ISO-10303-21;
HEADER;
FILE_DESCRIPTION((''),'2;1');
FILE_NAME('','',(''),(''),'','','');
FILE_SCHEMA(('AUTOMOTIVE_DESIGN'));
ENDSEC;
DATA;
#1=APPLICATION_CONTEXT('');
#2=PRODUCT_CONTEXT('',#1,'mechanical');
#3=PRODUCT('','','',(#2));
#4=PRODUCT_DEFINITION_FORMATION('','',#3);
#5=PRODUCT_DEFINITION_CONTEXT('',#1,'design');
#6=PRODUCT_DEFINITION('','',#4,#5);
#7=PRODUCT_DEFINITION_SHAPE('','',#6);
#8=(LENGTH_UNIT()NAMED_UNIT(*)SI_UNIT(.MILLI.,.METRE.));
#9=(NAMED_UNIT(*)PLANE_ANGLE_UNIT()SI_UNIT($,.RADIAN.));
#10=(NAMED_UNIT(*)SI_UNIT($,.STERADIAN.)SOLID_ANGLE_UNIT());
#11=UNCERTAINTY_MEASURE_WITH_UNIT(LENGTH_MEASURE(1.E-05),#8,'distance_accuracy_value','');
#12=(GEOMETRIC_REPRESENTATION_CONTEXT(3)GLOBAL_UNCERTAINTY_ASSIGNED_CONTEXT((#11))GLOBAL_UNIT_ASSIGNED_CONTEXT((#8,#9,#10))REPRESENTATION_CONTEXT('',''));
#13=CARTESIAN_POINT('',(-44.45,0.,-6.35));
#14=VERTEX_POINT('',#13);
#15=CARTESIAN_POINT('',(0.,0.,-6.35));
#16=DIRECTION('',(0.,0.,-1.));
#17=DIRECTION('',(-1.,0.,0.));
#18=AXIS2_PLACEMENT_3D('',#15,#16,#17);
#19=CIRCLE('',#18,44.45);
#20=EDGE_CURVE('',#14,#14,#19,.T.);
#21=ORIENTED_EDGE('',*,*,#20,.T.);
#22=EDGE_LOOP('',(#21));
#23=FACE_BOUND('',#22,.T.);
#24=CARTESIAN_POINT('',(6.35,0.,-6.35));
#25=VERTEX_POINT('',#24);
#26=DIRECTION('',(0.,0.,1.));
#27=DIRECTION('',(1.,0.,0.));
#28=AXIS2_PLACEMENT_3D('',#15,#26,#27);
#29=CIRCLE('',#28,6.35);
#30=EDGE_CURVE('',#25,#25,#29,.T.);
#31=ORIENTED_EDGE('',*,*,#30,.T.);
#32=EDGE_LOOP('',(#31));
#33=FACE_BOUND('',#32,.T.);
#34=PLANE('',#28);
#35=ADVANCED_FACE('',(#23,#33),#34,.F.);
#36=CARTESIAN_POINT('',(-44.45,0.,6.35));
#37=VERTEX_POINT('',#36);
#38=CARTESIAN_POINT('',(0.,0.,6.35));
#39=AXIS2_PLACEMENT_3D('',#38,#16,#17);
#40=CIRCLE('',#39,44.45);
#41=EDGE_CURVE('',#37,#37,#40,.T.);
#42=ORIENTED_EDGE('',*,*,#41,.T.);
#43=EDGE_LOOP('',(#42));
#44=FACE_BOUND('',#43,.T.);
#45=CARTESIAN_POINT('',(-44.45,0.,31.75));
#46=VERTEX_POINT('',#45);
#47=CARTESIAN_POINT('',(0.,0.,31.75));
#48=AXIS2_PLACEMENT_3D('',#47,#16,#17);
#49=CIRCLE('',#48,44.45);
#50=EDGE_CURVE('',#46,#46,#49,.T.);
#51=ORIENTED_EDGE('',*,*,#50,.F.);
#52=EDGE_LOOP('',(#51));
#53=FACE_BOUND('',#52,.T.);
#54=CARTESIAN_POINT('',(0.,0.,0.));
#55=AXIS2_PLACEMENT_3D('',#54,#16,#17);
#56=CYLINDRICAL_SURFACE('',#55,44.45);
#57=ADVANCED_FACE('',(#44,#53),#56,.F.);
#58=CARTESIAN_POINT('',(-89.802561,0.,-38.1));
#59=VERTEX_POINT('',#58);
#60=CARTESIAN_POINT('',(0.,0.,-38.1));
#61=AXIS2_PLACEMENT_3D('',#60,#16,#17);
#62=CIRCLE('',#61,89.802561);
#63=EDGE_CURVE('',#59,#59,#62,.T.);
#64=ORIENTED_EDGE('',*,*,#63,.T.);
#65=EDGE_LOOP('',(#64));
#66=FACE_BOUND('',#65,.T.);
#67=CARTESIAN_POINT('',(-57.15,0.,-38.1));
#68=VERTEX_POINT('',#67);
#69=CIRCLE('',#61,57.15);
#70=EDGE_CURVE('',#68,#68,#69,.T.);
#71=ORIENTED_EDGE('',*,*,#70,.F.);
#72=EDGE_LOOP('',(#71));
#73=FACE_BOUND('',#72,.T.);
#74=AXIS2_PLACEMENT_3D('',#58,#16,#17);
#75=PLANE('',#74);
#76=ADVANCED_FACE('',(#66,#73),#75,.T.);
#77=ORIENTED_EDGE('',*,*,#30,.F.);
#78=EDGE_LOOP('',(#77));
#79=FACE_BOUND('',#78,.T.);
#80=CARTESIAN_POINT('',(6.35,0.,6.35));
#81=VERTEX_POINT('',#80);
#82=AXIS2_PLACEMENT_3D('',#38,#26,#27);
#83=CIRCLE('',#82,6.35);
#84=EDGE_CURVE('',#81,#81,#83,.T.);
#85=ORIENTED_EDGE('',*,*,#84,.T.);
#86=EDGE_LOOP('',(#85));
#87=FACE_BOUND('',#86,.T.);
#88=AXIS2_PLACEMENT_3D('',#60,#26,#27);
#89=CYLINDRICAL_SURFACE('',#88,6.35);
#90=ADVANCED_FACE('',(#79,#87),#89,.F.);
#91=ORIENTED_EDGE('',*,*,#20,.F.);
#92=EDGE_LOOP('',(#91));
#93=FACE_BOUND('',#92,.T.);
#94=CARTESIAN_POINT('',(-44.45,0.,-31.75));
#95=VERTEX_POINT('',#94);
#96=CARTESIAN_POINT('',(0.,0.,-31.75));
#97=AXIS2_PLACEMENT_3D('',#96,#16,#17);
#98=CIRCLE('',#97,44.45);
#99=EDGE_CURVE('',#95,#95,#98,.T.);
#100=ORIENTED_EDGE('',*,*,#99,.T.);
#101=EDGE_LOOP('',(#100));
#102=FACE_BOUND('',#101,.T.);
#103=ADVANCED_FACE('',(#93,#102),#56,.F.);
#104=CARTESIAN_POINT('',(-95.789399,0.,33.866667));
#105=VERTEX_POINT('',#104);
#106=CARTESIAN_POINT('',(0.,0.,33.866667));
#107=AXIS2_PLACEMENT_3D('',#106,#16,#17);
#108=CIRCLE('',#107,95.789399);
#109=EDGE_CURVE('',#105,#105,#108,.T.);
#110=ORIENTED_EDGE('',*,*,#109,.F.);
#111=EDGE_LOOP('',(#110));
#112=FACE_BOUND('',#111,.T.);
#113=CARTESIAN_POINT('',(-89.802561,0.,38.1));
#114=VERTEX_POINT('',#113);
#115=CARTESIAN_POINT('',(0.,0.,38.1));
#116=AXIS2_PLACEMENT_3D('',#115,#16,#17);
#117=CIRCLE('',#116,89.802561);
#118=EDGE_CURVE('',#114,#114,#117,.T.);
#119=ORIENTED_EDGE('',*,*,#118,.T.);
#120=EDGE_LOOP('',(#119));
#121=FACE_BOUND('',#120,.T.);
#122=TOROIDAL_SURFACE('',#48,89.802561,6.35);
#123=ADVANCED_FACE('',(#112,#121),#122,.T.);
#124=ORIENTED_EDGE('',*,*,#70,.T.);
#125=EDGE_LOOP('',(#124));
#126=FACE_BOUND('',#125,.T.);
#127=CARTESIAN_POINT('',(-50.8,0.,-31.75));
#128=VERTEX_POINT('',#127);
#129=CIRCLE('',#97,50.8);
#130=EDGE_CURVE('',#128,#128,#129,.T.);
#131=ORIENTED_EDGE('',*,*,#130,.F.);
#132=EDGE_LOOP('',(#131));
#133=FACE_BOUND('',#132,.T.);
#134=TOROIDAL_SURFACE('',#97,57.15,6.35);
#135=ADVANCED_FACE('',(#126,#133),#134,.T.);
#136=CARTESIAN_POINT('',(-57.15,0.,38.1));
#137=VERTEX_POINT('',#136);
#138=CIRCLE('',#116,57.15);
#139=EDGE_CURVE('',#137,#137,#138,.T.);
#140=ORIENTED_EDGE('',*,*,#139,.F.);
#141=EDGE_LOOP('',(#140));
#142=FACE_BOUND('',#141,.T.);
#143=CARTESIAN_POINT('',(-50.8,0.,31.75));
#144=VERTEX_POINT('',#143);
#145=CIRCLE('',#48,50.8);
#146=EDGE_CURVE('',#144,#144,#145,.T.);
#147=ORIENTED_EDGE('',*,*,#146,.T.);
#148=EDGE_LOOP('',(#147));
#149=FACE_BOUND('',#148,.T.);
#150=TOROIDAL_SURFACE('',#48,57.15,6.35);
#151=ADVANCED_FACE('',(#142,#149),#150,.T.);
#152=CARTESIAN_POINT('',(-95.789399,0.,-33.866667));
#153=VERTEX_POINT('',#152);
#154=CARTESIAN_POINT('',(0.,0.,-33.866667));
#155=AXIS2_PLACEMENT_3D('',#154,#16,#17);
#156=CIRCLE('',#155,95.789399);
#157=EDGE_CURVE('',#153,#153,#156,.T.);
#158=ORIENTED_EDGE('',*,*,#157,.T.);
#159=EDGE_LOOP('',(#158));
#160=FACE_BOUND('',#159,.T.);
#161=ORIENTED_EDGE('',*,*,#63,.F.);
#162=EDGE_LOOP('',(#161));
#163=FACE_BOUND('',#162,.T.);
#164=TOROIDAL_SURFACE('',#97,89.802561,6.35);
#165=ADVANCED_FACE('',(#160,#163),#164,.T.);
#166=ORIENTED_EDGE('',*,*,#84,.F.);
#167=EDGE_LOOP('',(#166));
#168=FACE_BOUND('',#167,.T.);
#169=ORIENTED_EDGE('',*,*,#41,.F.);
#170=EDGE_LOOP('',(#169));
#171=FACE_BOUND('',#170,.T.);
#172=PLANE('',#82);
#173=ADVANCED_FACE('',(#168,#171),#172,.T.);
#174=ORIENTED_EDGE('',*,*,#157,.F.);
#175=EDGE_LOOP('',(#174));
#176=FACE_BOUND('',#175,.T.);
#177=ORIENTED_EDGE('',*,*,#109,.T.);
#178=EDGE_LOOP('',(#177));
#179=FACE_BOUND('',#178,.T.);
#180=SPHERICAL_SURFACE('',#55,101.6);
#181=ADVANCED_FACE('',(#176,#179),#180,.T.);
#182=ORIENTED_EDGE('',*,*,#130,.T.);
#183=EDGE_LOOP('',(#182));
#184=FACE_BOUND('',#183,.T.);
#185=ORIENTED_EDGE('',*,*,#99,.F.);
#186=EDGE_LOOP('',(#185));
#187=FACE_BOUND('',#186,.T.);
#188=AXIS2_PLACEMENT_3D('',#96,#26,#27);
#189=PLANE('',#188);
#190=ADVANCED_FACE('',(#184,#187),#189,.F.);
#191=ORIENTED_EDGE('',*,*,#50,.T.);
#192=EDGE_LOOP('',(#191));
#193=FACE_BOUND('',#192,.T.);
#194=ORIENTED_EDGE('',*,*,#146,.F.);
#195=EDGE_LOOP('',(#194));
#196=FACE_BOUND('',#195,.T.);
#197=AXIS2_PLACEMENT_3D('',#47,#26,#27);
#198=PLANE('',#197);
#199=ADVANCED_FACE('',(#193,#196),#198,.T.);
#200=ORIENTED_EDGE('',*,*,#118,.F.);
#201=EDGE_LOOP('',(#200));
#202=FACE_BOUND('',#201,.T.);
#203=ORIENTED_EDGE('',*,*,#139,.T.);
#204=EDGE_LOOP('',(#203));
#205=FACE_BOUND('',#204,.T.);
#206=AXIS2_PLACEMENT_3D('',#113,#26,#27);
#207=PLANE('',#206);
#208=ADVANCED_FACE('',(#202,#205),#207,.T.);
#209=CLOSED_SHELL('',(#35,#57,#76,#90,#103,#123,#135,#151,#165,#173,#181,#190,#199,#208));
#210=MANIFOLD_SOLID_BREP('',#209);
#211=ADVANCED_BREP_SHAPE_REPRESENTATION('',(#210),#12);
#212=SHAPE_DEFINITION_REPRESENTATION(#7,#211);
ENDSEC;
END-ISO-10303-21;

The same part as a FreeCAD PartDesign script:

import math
import FreeCAD as App
import Part
import Sketcher

V = App.Vector
Q = App.Units.Quantity

doc = App.newDocument("Part")
body = doc.addObject("PartDesign::Body", "Body")

# Sketch on XZ plane
sketch1 = doc.addObject("Sketcher::SketchObject", "Sketch")
body.addObject(sketch1)
sketch1.AttachmentSupport = (doc.XZ_Plane, [""])
sketch1.MapMode = "FlatFace"
sketch1.addGeometry(Part.LineSegment(V(-90, 38, 0), V(-57, 38, 0)), False)
sketch1.addGeometry(Part.ArcOfCircle(Part.Circle(V(-57, 32, 0), V(0, 0, 1), 6), math.radians(0), math.radians(90)), False)
sketch1.addGeometry(Part.LineSegment(V(-51, 32, 0), V(-51, -32, 0)), False)
sketch1.addGeometry(Part.ArcOfCircle(Part.Circle(V(-57, -32, 0), V(0, 0, 1), 6), math.radians(-90), math.radians(0)), False)
sketch1.addGeometry(Part.LineSegment(V(-57, -38, 0), V(-90, -38, 0)), False)
sketch1.addGeometry(Part.ArcOfCircle(Part.Circle(V(-90, -32, 0), V(0, 0, 1), 6), math.radians(-161), math.radians(-90)), False)
sketch1.addGeometry(Part.ArcOfCircle(Part.Circle(V(0, 0, 0), V(0, 0, 1), 102), math.radians(161), math.radians(199)), False)
sketch1.addGeometry(Part.ArcOfCircle(Part.Circle(V(-90, 32, 0), V(0, 0, 1), 6), math.radians(90), math.radians(161)), False)
sketch1.addConstraint(Sketcher.Constraint("Tangent", 0, 2, 1, 2))
sketch1.addConstraint(Sketcher.Constraint("Tangent", 1, 1, 2, 1))
sketch1.addConstraint(Sketcher.Constraint("Tangent", 2, 2, 3, 2))
sketch1.addConstraint(Sketcher.Constraint("Tangent", 3, 1, 4, 1))
sketch1.addConstraint(Sketcher.Constraint("Tangent", 4, 2, 5, 2))
sketch1.addConstraint(Sketcher.Constraint("Tangent", 5, 1, 6, 2))
sketch1.addConstraint(Sketcher.Constraint("Tangent", 6, 1, 7, 2))
sketch1.addConstraint(Sketcher.Constraint("Tangent", 7, 1, 0, 1))
sketch1.addConstraint(Sketcher.Constraint("Horizontal", 0))
sketch1.addConstraint(Sketcher.Constraint("Vertical", 2))
sketch1.addConstraint(Sketcher.Constraint("Horizontal", 4))
sketch1.addConstraint(Sketcher.Constraint("Coincident", 6, 3, -1, 1))
sketch1.addConstraint(Sketcher.Constraint("Equal", 1, 3))
sketch1.addConstraint(Sketcher.Constraint("Equal", 3, 5))
sketch1.addConstraint(Sketcher.Constraint("Equal", 5, 7))
sketch1.addConstraint(Sketcher.Constraint("Vertical", 5, 3, 7, 3))
sketch1.addConstraint(Sketcher.Constraint("Radius", 6, Q("4 in")))
sketch1.addConstraint(Sketcher.Constraint("Radius", 1, Q("0.25 in")))
sketch1.addConstraint(Sketcher.Constraint("DistanceY", 2, 2, 2, 1, Q("2.5 in")))
sketch1.addConstraint(Sketcher.Constraint("DistanceX", 1, 1, -1, 1, Q("2 in")))
revolution = doc.addObject("PartDesign::Revolution", "Revolution")
body.addObject(revolution)
revolution.Profile = sketch1
revolution.ReferenceAxis = (sketch1, ["V_Axis"])
revolution.Angle = 360

# Sketch on XZ plane
sketch2 = doc.addObject("Sketcher::SketchObject", "Sketch001")
body.addObject(sketch2)
sketch2.AttachmentSupport = (doc.XZ_Plane, [""])
sketch2.MapMode = "FlatFace"
sketch2.addGeometry(Part.LineSegment(V(-44, -32, 0), V(-51, -32, 0)), False)
sketch2.addGeometry(Part.ArcOfCircle(Part.Circle(V(-57, -32, 0), V(0, 0, 1), 6), math.radians(-90), math.radians(0)), False)
sketch2.addGeometry(Part.LineSegment(V(-57, -38, 0), V(-90, -38, 0)), False)
sketch2.addGeometry(Part.ArcOfCircle(Part.Circle(V(-90, -32, 0), V(0, 0, 1), 6), math.radians(-161), math.radians(-90)), False)
sketch2.addGeometry(Part.ArcOfCircle(Part.Circle(V(0, 0, 0), V(0, 0, 1), 102), math.radians(161), math.radians(199)), False)
sketch2.addGeometry(Part.ArcOfCircle(Part.Circle(V(-90, 32, 0), V(0, 0, 1), 6), math.radians(90), math.radians(161)), False)
sketch2.addGeometry(Part.LineSegment(V(-90, 38, 0), V(-57, 38, 0)), False)
sketch2.addGeometry(Part.ArcOfCircle(Part.Circle(V(-57, 32, 0), V(0, 0, 1), 6), math.radians(0), math.radians(90)), False)
sketch2.addGeometry(Part.LineSegment(V(-51, 32, 0), V(-44, 32, 0)), False)
sketch2.addGeometry(Part.LineSegment(V(-44, 32, 0), V(-44, 6, 0)), False)
sketch2.addGeometry(Part.LineSegment(V(-44, 6, 0), V(0, 6, 0)), False)
sketch2.addGeometry(Part.LineSegment(V(0, 6, 0), V(0, -6, 0)), False)
sketch2.addGeometry(Part.LineSegment(V(0, -6, 0), V(-44, -6, 0)), False)
sketch2.addGeometry(Part.LineSegment(V(-44, -6, 0), V(-44, -32, 0)), False)
sketch2.addConstraint(Sketcher.Constraint("Coincident", 0, 2, 1, 2))
sketch2.addConstraint(Sketcher.Constraint("Tangent", 1, 1, 2, 1))
sketch2.addConstraint(Sketcher.Constraint("Tangent", 2, 2, 3, 2))
sketch2.addConstraint(Sketcher.Constraint("Tangent", 3, 1, 4, 2))
sketch2.addConstraint(Sketcher.Constraint("Tangent", 4, 1, 5, 2))
sketch2.addConstraint(Sketcher.Constraint("Tangent", 5, 1, 6, 1))
sketch2.addConstraint(Sketcher.Constraint("Tangent", 6, 2, 7, 2))
sketch2.addConstraint(Sketcher.Constraint("Coincident", 7, 1, 8, 1))
sketch2.addConstraint(Sketcher.Constraint("Coincident", 8, 2, 9, 1))
sketch2.addConstraint(Sketcher.Constraint("Coincident", 9, 2, 10, 1))
sketch2.addConstraint(Sketcher.Constraint("Coincident", 10, 2, 11, 1))
sketch2.addConstraint(Sketcher.Constraint("Coincident", 11, 2, 12, 1))
sketch2.addConstraint(Sketcher.Constraint("Coincident", 12, 2, 13, 1))
sketch2.addConstraint(Sketcher.Constraint("Coincident", 13, 2, 0, 1))
sketch2.addConstraint(Sketcher.Constraint("Horizontal", 0))
sketch2.addConstraint(Sketcher.Constraint("Horizontal", 2))
sketch2.addConstraint(Sketcher.Constraint("Horizontal", 6))
sketch2.addConstraint(Sketcher.Constraint("Horizontal", 8))
sketch2.addConstraint(Sketcher.Constraint("Vertical", 9))
sketch2.addConstraint(Sketcher.Constraint("Horizontal", 10))
sketch2.addConstraint(Sketcher.Constraint("Vertical", 11))
sketch2.addConstraint(Sketcher.Constraint("Horizontal", 12))
sketch2.addConstraint(Sketcher.Constraint("Vertical", 13))
sketch2.addConstraint(Sketcher.Constraint("Coincident", 4, 3, -1, 1))
sketch2.addConstraint(Sketcher.Constraint("Equal", 1, 3))
sketch2.addConstraint(Sketcher.Constraint("Equal", 3, 5))
sketch2.addConstraint(Sketcher.Constraint("Equal", 5, 7))
sketch2.addConstraint(Sketcher.Constraint("Symmetric", 10, 2, 11, 2, -1, 1))
sketch2.addConstraint(Sketcher.Constraint("Symmetric", 1, 3, 7, 3, -1))
sketch2.addConstraint(Sketcher.Constraint("Symmetric", 8, 2, 13, 2, -1))
sketch2.addConstraint(Sketcher.Constraint("Horizontal", 3, 3, 0, 2))
sketch2.addConstraint(Sketcher.Constraint("Radius", 4, Q("4 in")))
sketch2.addConstraint(Sketcher.Constraint("DistanceY", 9, 2, 9, 1, Q("1 in")))
sketch2.addConstraint(Sketcher.Constraint("Radius", 1, Q("0.25 in")))
sketch2.addConstraint(Sketcher.Constraint("DistanceY", 11, 2, 11, 1, Q("0.5 in")))
sketch2.addConstraint(Sketcher.Constraint("DistanceX", 0, 2, -1, 1, Q("2 in")))
sketch2.addConstraint(Sketcher.Constraint("DistanceX", 0, 2, 0, 1, Q("0.25 in")))
revolution2 = doc.addObject("PartDesign::Revolution", "Revolution001")
body.addObject(revolution2)
revolution2.Profile = sketch2
revolution2.ReferenceAxis = (sketch2, ["V_Axis"])
revolution2.Angle = 360

# Sketch on XY plane
sketch3 = doc.addObject("Sketcher::SketchObject", "Sketch002")
body.addObject(sketch3)
sketch3.AttachmentSupport = (doc.XY_Plane, [""])
sketch3.MapMode = "FlatFace"
sketch3.AttachmentOffset = App.Placement(V(0, 0, 0.25 * 25.4), App.Rotation())
sketch3.addGeometry(Part.Circle(V(0, 0, 0), V(0, 0, 1), 6), False)
sketch3.addConstraint(Sketcher.Constraint("Coincident", 0, 3, -1, 1))
sketch3.addConstraint(Sketcher.Constraint("Diameter", 0, Q("0.5 in")))
pocket1 = doc.addObject("PartDesign::Pocket", "Pocket")
body.addObject(pocket1)
pocket1.Profile = sketch3
pocket1.Type = "ThroughAll"
pocket1.Midplane = True

doc.recompute()
